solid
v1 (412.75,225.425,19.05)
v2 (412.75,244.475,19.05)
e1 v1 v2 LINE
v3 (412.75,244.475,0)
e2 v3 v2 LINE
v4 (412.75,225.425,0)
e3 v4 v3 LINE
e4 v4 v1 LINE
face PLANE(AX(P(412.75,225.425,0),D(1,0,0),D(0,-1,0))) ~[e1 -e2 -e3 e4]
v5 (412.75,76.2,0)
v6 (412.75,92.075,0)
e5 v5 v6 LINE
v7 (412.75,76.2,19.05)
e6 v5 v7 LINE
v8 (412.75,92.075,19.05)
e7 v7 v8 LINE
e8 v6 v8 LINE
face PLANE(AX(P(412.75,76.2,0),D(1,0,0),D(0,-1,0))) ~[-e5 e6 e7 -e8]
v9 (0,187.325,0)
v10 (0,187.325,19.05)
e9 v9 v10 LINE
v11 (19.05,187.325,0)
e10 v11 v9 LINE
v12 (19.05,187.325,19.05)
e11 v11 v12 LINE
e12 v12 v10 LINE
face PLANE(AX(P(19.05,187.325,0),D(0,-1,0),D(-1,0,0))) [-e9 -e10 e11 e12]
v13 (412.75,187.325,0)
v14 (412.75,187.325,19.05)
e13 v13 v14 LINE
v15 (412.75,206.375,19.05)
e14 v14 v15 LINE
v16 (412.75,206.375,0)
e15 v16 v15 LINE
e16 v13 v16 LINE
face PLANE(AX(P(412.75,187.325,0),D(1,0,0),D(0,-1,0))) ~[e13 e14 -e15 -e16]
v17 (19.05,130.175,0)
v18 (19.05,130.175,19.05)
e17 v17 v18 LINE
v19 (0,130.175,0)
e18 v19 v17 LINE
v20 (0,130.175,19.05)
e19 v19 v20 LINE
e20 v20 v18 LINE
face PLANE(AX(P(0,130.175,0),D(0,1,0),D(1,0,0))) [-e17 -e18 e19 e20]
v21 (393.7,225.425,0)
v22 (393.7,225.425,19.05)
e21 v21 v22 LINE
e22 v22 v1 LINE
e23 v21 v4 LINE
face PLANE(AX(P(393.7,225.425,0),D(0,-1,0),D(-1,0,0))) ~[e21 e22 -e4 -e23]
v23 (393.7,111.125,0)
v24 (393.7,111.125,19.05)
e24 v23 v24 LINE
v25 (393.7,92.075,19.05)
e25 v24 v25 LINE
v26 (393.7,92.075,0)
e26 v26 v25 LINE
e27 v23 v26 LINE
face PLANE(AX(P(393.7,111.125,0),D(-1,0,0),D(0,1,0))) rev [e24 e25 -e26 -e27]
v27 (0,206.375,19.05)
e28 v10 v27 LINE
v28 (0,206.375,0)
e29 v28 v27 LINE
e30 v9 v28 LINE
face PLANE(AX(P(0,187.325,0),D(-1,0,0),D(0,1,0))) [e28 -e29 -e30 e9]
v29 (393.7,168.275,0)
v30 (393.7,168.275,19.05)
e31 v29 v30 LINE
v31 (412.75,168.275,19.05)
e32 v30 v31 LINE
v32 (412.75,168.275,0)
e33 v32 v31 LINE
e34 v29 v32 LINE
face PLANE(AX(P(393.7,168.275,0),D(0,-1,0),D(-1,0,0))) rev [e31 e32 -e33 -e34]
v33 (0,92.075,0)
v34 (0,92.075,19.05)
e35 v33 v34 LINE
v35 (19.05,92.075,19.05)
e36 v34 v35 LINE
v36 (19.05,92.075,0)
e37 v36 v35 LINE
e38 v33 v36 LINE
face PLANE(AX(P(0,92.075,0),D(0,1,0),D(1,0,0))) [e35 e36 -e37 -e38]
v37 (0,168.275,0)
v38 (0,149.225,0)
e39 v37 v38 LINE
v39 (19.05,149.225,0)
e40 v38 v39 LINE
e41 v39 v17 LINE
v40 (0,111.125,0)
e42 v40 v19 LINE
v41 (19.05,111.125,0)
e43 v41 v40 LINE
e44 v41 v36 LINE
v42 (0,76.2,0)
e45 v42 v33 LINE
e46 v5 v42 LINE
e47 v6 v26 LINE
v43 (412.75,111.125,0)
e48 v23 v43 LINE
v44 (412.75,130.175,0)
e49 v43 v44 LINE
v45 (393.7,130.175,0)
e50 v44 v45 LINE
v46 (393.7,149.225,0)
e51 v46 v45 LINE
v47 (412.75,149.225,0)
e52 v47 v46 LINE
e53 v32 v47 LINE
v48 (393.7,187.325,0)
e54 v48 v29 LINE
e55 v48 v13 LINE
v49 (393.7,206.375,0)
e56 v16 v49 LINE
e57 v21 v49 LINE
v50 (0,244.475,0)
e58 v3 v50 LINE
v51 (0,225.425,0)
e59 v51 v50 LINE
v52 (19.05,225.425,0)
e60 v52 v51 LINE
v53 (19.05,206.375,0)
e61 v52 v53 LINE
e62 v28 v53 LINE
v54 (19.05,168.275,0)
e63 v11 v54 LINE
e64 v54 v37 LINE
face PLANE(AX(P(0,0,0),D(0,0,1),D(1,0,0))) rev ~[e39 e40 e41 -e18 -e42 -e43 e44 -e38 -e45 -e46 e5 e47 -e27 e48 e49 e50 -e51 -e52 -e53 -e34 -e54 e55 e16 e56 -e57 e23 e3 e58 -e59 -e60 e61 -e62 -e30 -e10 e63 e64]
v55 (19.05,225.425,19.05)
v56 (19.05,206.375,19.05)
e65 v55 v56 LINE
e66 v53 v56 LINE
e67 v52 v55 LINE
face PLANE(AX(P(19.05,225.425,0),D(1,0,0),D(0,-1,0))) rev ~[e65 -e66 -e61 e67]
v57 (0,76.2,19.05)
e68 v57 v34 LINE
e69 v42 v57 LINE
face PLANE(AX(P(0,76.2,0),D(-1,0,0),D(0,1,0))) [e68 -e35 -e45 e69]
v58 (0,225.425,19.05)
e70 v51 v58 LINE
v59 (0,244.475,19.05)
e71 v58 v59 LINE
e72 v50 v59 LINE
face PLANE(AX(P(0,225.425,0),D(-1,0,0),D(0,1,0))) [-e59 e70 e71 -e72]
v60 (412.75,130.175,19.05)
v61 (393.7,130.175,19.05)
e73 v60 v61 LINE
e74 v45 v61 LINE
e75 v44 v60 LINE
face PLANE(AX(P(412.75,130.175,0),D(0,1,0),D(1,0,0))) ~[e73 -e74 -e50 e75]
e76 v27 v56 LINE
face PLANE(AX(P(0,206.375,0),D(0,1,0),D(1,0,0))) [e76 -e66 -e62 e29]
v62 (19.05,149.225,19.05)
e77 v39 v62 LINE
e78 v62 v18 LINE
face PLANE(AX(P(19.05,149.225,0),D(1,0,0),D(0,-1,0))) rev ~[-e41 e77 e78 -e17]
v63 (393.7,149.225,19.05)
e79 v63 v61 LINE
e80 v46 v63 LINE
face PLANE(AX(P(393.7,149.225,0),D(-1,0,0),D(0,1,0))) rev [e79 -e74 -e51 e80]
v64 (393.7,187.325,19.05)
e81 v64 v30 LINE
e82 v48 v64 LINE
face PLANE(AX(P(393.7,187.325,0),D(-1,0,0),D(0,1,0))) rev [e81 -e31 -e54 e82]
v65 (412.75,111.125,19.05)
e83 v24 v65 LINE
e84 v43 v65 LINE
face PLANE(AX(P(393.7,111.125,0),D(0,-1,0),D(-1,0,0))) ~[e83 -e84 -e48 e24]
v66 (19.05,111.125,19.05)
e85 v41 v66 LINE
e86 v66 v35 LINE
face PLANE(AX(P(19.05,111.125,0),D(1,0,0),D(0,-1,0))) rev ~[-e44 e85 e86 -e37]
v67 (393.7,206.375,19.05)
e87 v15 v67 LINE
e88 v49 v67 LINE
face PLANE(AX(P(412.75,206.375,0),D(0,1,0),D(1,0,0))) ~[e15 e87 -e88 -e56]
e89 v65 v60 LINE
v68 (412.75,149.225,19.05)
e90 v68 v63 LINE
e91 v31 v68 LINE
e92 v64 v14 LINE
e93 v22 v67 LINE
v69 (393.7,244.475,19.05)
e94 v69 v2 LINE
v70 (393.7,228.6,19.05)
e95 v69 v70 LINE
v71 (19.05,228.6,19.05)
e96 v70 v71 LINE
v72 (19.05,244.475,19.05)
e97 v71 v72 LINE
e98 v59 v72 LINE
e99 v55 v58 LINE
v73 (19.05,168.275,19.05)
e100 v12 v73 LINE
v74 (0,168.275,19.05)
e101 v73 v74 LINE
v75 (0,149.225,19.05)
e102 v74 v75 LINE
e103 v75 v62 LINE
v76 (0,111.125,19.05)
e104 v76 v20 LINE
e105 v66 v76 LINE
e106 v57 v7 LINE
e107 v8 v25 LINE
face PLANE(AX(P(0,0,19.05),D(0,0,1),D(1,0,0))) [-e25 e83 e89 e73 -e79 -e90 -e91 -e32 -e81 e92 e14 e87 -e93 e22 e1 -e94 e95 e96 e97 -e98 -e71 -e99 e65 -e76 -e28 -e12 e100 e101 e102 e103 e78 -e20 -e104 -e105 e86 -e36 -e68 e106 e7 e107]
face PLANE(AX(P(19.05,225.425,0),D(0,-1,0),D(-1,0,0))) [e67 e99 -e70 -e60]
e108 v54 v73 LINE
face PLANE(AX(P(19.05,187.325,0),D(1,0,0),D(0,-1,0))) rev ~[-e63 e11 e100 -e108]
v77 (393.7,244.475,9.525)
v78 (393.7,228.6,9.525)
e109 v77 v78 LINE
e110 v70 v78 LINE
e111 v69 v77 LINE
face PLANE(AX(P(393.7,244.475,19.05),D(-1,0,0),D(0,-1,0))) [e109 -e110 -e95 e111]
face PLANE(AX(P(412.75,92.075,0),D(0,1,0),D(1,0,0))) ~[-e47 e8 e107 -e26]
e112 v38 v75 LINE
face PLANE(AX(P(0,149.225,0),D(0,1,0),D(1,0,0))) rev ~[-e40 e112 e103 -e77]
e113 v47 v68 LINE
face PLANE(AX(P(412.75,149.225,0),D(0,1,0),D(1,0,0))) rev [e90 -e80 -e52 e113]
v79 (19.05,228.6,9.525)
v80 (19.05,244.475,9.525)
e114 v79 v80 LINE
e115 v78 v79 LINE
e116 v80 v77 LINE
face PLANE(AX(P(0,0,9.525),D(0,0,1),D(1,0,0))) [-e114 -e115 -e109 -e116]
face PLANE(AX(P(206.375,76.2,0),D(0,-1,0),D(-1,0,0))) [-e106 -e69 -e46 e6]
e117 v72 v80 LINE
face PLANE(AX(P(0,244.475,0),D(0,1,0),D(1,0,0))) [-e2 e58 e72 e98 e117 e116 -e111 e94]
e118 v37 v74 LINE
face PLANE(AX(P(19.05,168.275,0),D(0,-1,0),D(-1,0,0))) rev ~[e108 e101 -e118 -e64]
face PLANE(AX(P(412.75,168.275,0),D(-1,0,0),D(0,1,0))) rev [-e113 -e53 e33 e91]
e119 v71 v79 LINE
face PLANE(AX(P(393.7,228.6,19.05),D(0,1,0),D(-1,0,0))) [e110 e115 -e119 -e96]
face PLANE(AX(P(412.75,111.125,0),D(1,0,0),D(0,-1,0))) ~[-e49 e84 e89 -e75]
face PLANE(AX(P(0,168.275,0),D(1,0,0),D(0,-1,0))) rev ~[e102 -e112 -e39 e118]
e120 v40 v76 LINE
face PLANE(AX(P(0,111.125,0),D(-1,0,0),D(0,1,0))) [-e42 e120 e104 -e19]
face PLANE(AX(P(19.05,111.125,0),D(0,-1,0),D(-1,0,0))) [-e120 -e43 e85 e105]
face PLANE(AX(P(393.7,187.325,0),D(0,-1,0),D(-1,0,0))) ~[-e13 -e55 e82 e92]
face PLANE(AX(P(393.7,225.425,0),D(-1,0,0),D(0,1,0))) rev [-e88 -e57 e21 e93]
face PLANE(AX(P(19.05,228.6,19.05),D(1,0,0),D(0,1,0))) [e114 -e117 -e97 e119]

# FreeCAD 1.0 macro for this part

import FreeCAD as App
import Part
import Sketcher
Q = App.Units.Quantity


def add_polygon(sketch, points):
    """Adds a closed chain of lines whose ends are joined by coincident constraints."""
    first, n = sketch.GeometryCount, len(points)
    for a, b in zip(points, points[1:] + points[:1]):
        sketch.addGeometry(Part.LineSegment(App.Vector(*a, 0), App.Vector(*b, 0)), False)
    for i in range(n):
        sketch.addConstraint(Sketcher.Constraint("Coincident", first + i, 2, first + (i + 1) % n, 1))

doc = App.newDocument("Part")
body = doc.addObject("PartDesign::Body", "Body")

# Sketch on XY plane
sketch1 = doc.addObject("Sketcher::SketchObject", "Sketch")
body.addObject(sketch1)
sketch1.AttachmentSupport = (doc.XY_Plane, [""])
sketch1.MapMode = "FlatFace"
add_polygon(sketch1, [(0, 244), (0, 225), (19, 225), (19, 206), (0, 206), (0, 187), (19, 187), (19, 168), (0, 168), (0, 149), (19, 149), (19, 130), (0, 130), (0, 111), (19, 111), (19, 92), (0, 92), (0, 76), (206, 76), (206, 244)])  # lines 0-19
sketch1.addConstraint(Sketcher.Constraint("Vertical", 0))
sketch1.addConstraint(Sketcher.Constraint("Horizontal", 1))
sketch1.addConstraint(Sketcher.Constraint("Vertical", 2))
sketch1.addConstraint(Sketcher.Constraint("Horizontal", 3))
sketch1.addConstraint(Sketcher.Constraint("Vertical", 4))
sketch1.addConstraint(Sketcher.Constraint("Horizontal", 5))
sketch1.addConstraint(Sketcher.Constraint("Vertical", 6))
sketch1.addConstraint(Sketcher.Constraint("Horizontal", 7))
sketch1.addConstraint(Sketcher.Constraint("Vertical", 8))
sketch1.addConstraint(Sketcher.Constraint("Horizontal", 9))
sketch1.addConstraint(Sketcher.Constraint("Vertical", 10))
sketch1.addConstraint(Sketcher.Constraint("Horizontal", 11))
sketch1.addConstraint(Sketcher.Constraint("Vertical", 12))
sketch1.addConstraint(Sketcher.Constraint("Horizontal", 13))
sketch1.addConstraint(Sketcher.Constraint("Vertical", 14))
sketch1.addConstraint(Sketcher.Constraint("Horizontal", 15))
sketch1.addConstraint(Sketcher.Constraint("Vertical", 16))
sketch1.addConstraint(Sketcher.Constraint("Horizontal", 17))
sketch1.addConstraint(Sketcher.Constraint("Vertical", 18))
sketch1.addConstraint(Sketcher.Constraint("Horizontal", 19))
sketch1.addConstraint(Sketcher.Constraint("PointOnObject", 0, 2, -2))
sketch1.addConstraint(Sketcher.Constraint("PointOnObject", 3, 2, -2))
sketch1.addConstraint(Sketcher.Constraint("PointOnObject", 7, 2, -2))
sketch1.addConstraint(Sketcher.Constraint("PointOnObject", 11, 2, -2))
sketch1.addConstraint(Sketcher.Constraint("PointOnObject", 15, 2, -2))
sketch1.addConstraint(Sketcher.Constraint("Vertical", 2, 2, 5, 2))
sketch1.addConstraint(Sketcher.Constraint("Vertical", 6, 2, 9, 2))
sketch1.addConstraint(Sketcher.Constraint("Vertical", 10, 2, 13, 2))
sketch1.addConstraint(Sketcher.Constraint("Equal", 15, 0))
sketch1.addConstraint(Sketcher.Constraint("Equal", 0, 2))
sketch1.addConstraint(Sketcher.Constraint("Equal", 2, 4))
sketch1.addConstraint(Sketcher.Constraint("Equal", 4, 6))
sketch1.addConstraint(Sketcher.Constraint("Equal", 6, 8))
sketch1.addConstraint(Sketcher.Constraint("Equal", 8, 10))
sketch1.addConstraint(Sketcher.Constraint("Equal", 10, 12))
sketch1.addConstraint(Sketcher.Constraint("Equal", 12, 14))
sketch1.addConstraint(Sketcher.Constraint("DistanceX", 1, 1, 1, 2, Q("0.75 in")))
sketch1.addConstraint(Sketcher.Constraint("DistanceX", 17, 1, 17, 2, Q("8.125 in")))
sketch1.addConstraint(Sketcher.Constraint("DistanceY", 18, 1, 18, 2, Q("6.625 in")))
sketch1.addConstraint(Sketcher.Constraint("DistanceY", -1, 1, 2, 2, Q("8.125 in")))
pad1 = doc.addObject("PartDesign::Pad", "Pad")
body.addObject(pad1)
pad1.Profile = sketch1
pad1.Length = Q("0.75 in")
doc.recompute()

datumplane = doc.addObject("PartDesign::Plane", "DatumPlane")
body.addObject(datumplane)
datumplane.AttachmentSupport = (doc.YZ_Plane, [""])
datumplane.MapMode = "FlatFace"
datumplane.AttachmentOffset = App.Placement(App.Vector(0, 0, 8.125 * 25.4), App.Rotation())
mirrored = doc.addObject("PartDesign::Mirrored", "Mirrored")
body.addObject(mirrored)
mirrored.Originals = [pad1]
mirrored.MirrorPlane = (datumplane, [""])
body.Tip = mirrored

# Sketch on XY plane
sketch2 = doc.addObject("Sketcher::SketchObject", "Sketch001")
body.addObject(sketch2)
sketch2.AttachmentSupport = (doc.XY_Plane, [""])
sketch2.MapMode = "FlatFace"
sketch2.AttachmentOffset = App.Placement(App.Vector(0, 0, 0.75 * 25.4), App.Rotation())
add_polygon(sketch2, [(394, 244), (19, 244), (19, 229), (394, 229)])  # lines 0-3
sketch2.addConstraint(Sketcher.Constraint("Horizontal", 0))
sketch2.addConstraint(Sketcher.Constraint("Vertical", 1))
sketch2.addConstraint(Sketcher.Constraint("Horizontal", 2))
sketch2.addConstraint(Sketcher.Constraint("Vertical", 3))
sketch2.addConstraint(Sketcher.Constraint("DistanceY", 1, 2, 1, 1, Q("0.625 in")))
sketch2.addConstraint(Sketcher.Constraint("DistanceY", -1, 1, 1, 2, Q("9 in")))
sketch2.addConstraint(Sketcher.Constraint("DistanceX", 0, 2, 0, 1, Q("14.75 in")))
sketch2.addConstraint(Sketcher.Constraint("DistanceX", -1, 1, 2, 2, Q("15.5 in")))
pocket1 = doc.addObject("PartDesign::Pocket", "Pocket")
body.addObject(pocket1)
pocket1.Profile = sketch2
pocket1.Length = Q("0.375 in")

doc.recompute()
